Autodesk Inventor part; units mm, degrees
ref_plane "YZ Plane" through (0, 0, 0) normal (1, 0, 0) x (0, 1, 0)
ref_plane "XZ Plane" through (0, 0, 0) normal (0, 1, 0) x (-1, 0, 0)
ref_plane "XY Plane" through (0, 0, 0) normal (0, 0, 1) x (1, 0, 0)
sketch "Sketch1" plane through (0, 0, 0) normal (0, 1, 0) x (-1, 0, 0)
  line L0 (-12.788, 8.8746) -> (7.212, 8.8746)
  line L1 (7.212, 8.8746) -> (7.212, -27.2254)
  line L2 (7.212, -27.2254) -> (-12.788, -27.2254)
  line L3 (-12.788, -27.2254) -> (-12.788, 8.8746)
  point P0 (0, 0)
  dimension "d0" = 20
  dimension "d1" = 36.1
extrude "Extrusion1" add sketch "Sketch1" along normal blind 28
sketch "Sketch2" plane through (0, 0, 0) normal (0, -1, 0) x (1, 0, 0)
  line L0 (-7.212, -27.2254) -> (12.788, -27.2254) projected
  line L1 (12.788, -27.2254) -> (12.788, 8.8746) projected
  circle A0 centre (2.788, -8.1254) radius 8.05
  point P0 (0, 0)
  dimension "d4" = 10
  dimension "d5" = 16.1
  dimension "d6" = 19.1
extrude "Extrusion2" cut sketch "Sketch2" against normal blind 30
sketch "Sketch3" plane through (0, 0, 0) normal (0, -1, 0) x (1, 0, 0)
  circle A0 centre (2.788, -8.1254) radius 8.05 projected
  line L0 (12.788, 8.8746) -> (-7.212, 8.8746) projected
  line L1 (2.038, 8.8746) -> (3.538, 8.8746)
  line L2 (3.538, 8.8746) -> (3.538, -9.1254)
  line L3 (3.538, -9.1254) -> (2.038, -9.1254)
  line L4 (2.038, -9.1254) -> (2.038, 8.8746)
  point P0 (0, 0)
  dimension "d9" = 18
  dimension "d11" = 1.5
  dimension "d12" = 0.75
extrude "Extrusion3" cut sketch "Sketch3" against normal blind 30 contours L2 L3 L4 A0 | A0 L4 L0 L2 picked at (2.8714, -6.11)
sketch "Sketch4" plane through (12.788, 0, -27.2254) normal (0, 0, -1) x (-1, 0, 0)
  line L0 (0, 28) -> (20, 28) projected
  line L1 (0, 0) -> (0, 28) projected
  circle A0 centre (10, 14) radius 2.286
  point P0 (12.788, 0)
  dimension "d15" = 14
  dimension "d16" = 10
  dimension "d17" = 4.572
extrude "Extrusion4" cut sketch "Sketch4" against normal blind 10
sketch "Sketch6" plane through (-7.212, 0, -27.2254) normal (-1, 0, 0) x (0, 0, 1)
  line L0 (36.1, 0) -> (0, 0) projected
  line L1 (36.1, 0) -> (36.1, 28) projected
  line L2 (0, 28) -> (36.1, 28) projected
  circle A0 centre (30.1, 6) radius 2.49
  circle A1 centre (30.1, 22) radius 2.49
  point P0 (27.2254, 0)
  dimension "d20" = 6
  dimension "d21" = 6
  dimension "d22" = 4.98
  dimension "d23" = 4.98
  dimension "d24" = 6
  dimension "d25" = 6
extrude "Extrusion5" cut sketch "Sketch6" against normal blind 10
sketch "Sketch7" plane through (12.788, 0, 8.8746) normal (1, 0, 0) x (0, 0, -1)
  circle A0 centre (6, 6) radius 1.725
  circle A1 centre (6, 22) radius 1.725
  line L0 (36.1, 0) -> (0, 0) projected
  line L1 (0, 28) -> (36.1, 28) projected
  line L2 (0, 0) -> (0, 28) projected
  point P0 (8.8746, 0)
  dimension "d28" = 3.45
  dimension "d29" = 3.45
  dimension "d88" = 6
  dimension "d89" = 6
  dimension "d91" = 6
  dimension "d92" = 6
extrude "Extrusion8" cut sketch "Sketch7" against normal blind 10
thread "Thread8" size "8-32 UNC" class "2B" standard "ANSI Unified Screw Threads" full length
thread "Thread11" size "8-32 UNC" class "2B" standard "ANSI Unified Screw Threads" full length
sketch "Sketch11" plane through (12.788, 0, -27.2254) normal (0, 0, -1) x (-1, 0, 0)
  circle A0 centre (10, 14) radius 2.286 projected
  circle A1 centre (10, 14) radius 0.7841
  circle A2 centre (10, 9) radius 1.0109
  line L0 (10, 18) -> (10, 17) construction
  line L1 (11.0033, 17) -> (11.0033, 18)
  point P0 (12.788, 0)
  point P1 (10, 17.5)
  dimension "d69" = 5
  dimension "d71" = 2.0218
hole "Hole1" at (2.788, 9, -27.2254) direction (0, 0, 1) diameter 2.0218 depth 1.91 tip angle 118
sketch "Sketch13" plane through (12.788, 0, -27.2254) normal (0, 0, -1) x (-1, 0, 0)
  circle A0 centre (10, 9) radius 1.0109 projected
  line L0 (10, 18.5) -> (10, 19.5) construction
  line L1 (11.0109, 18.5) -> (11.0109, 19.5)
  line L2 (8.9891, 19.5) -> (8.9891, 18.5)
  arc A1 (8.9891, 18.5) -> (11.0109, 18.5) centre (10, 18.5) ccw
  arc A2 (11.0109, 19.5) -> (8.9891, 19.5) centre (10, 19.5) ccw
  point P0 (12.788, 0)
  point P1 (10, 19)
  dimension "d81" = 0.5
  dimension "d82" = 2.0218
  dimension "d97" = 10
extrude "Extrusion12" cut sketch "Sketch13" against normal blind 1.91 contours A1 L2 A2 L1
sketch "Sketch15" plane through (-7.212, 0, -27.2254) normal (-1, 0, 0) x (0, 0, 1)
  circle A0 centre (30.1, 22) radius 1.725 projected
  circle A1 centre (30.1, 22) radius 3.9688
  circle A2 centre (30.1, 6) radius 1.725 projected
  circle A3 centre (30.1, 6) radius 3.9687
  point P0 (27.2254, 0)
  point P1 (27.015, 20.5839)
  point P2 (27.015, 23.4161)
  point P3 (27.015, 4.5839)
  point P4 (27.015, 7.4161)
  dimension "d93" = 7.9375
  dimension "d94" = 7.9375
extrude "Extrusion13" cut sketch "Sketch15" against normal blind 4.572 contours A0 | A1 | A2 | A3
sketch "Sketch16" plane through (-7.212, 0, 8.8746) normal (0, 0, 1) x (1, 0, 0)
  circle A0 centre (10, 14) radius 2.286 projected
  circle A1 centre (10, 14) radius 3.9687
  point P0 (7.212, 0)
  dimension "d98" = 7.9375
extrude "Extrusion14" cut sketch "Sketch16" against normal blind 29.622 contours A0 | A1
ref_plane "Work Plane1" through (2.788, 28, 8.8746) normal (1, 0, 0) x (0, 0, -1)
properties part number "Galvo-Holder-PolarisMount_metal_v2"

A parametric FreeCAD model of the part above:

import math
import FreeCAD as App
import Part
import Sketcher

V = App.Vector
Q = App.Units.Quantity


def add_polygon(sketch, points):
    """Adds a closed chain of lines whose ends are joined by coincident constraints."""
    first, n = sketch.GeometryCount, len(points)
    for a, b in zip(points, points[1:] + points[:1]):
        sketch.addGeometry(Part.LineSegment(App.Vector(*a, 0), App.Vector(*b, 0)), False)
    for i in range(n):
        sketch.addConstraint(Sketcher.Constraint("Coincident", first + i, 2, first + (i + 1) % n, 1))

doc = App.newDocument("Part")
body = doc.addObject("PartDesign::Body", "Body")

sketch1 = body.newObject("Sketcher::SketchObject", "Sketch")
sketch1.AttachmentSupport = (doc.getObject("XZ_Plane"), [""])
sketch1.MapMode = "FlatFace"
add_polygon(sketch1, [(-7, 9), (13, 9), (13, -27), (-7, -27)])
sketch1.addConstraint(Sketcher.Constraint("Horizontal", 0))
sketch1.addConstraint(Sketcher.Constraint("Vertical", 1))
sketch1.addConstraint(Sketcher.Constraint("Horizontal", 2))
sketch1.addConstraint(Sketcher.Constraint("Vertical", 3))
sketch1.addConstraint(Sketcher.Constraint("DistanceX", 0, 1, 0, 2, Q("20 mm")))
sketch1.addConstraint(Sketcher.Constraint("DistanceY", 1, 2, 1, 1, Q("36.1 mm")))
sketch1.addConstraint(Sketcher.Constraint("DistanceX", -1, 1, 0, 2, Q("12.788 mm")))
sketch1.addConstraint(Sketcher.Constraint("DistanceY", -1, 1, 0, 2, Q("8.8746 mm")))
pad1 = body.newObject("PartDesign::Pad", "Pad")
pad1.Profile = sketch1
pad1.Length = 28
pad1.Reversed = True

sketch2 = body.newObject("Sketcher::SketchObject", "Sketch001")
sketch2.AttachmentSupport = (doc.getObject("XZ_Plane"), [""])
sketch2.MapMode = "FlatFace"
sketch2.addGeometry(Part.Circle(V(3, -8, 0), V(0, 0, 1), 8), False)
sketch2.addConstraint(Sketcher.Constraint("Diameter", 0, Q("16.1 mm")))
sketch2.addConstraint(Sketcher.Constraint("DistanceX", -1, 1, 0, 3, Q("2.788 mm")))
sketch2.addConstraint(Sketcher.Constraint("DistanceY", 0, 3, -1, 1, Q("8.1254 mm")))
pocket1 = body.newObject("PartDesign::Pocket", "Pocket")
pocket1.Profile = sketch2
pocket1.Length = 30

sketch3 = body.newObject("Sketcher::SketchObject", "Sketch002")
sketch3.AttachmentSupport = (doc.getObject("XZ_Plane"), [""])
sketch3.MapMode = "FlatFace"
add_polygon(sketch3, [(3.5, -9.1), (3.5, 8.9), (2, 8.9), (2, -9.1)])
sketch3.addConstraint(Sketcher.Constraint("Vertical", 0))
sketch3.addConstraint(Sketcher.Constraint("Horizontal", 1))
sketch3.addConstraint(Sketcher.Constraint("Vertical", 2))
sketch3.addConstraint(Sketcher.Constraint("Horizontal", 3))
sketch3.addConstraint(Sketcher.Constraint("DistanceY", 0, 1, 0, 2, Q("18 mm")))
sketch3.addConstraint(Sketcher.Constraint("DistanceX", 1, 2, 1, 1, Q("1.5 mm")))
sketch3.addConstraint(Sketcher.Constraint("DistanceX", -1, 1, 0, 2, Q("3.538 mm")))
sketch3.addConstraint(Sketcher.Constraint("DistanceY", -1, 1, 0, 2, Q("8.8746 mm")))
pocket2 = body.newObject("PartDesign::Pocket", "Pocket001")
pocket2.Profile = sketch3
pocket2.Length = 30

sketch4 = body.newObject("Sketcher::SketchObject", "Sketch003")
sketch4.AttachmentSupport = (doc.getObject("XY_Plane"), [""])
sketch4.MapMode = "FlatFace"
sketch4.AttachmentOffset = App.Placement(V(0, 0, -27.2254), App.Rotation())
sketch4.addGeometry(Part.Circle(V(2.8, 14, 0), V(0, 0, 1), 2.3), False)
sketch4.addConstraint(Sketcher.Constraint("Diameter", 0, Q("4.572 mm")))
sketch4.addConstraint(Sketcher.Constraint("DistanceY", -1, 1, 0, 3, Q("14 mm")))
sketch4.addConstraint(Sketcher.Constraint("DistanceX", -1, 1, 0, 3, Q("2.788 mm")))
pocket3 = body.newObject("PartDesign::Pocket", "Pocket002")
pocket3.Profile = sketch4
pocket3.Length = 10
pocket3.Reversed = True

sketch5 = body.newObject("Sketcher::SketchObject", "Sketch004")
sketch5.AttachmentSupport = (doc.getObject("YZ_Plane"), [""])
sketch5.MapMode = "FlatFace"
sketch5.AttachmentOffset = App.Placement(V(0, 0, -7.212), App.Rotation())
sketch5.addGeometry(Part.Circle(V(6, 2.9, 0), V(0, 0, 1), 2.5), False)
sketch5.addGeometry(Part.Circle(V(22, 2.9, 0), V(0, 0, 1), 2.5), False)
sketch5.addConstraint(Sketcher.Constraint("Equal", 0, 1))
sketch5.addConstraint(Sketcher.Constraint("Horizontal", 0, 3, 1, 3))
sketch5.addConstraint(Sketcher.Constraint("Diameter", 0, Q("4.98 mm")))
sketch5.addConstraint(Sketcher.Constraint("DistanceX", -1, 1, 0, 3, Q("6 mm")))
sketch5.addConstraint(Sketcher.Constraint("DistanceX", -1, 1, 1, 3, Q("22 mm")))
sketch5.addConstraint(Sketcher.Constraint("DistanceY", -1, 1, 0, 3, Q("2.8746 mm")))
pocket4 = body.newObject("PartDesign::Pocket", "Pocket003")
pocket4.Profile = sketch5
pocket4.Length = 10
pocket4.Reversed = True

sketch6 = body.newObject("Sketcher::SketchObject", "Sketch005")
sketch6.AttachmentSupport = (doc.getObject("YZ_Plane"), [""])
sketch6.MapMode = "FlatFace"
sketch6.AttachmentOffset = App.Placement(V(0, 0, 12.788), App.Rotation())
sketch6.addGeometry(Part.Circle(V(6, 2.9, 0), V(0, 0, 1), 1.7), False)
sketch6.addGeometry(Part.Circle(V(22, 2.9, 0), V(0, 0, 1), 1.7), False)
sketch6.addConstraint(Sketcher.Constraint("Equal", 0, 1))
sketch6.addConstraint(Sketcher.Constraint("Horizontal", 0, 3, 1, 3))
sketch6.addConstraint(Sketcher.Constraint("Diameter", 0, Q("3.45 mm")))
sketch6.addConstraint(Sketcher.Constraint("DistanceX", -1, 1, 0, 3, Q("6 mm")))
sketch6.addConstraint(Sketcher.Constraint("DistanceX", -1, 1, 1, 3, Q("22 mm")))
sketch6.addConstraint(Sketcher.Constraint("DistanceY", -1, 1, 0, 3, Q("2.8746 mm")))
pocket5 = body.newObject("PartDesign::Pocket", "Pocket004")
pocket5.Profile = sketch6
pocket5.Length = 10

sketch7 = body.newObject("Sketcher::SketchObject", "Sketch006")
sketch7.AttachmentSupport = (doc.getObject("XY_Plane"), [""])
sketch7.MapMode = "FlatFace"
sketch7.AttachmentOffset = App.Placement(V(0, 0, -27.2254), App.Rotation())
sketch7.addGeometry(Part.Circle(V(2.8, 9, 0), V(0, 0, 1), 1), False)
sketch7.addConstraint(Sketcher.Constraint("DistanceY", -1, 1, 0, 3, Q("9 mm")))
sketch7.addConstraint(Sketcher.Constraint("Diameter", 0, Q("2.0218 mm")))
sketch7.addConstraint(Sketcher.Constraint("DistanceX", -1, 1, 0, 3, Q("2.788 mm")))
doc.recompute()
hole = body.newObject("PartDesign::Hole", "Hole")
hole.Profile = sketch7
hole.ThreadType = "None"
hole.Diameter = 2.0218
hole.DepthType = "Dimension"
hole.Depth = 1.91
hole.DrillPoint = "Angled"
hole.DrillPointAngle = 118
hole.Reversed = True

sketch8 = body.newObject("Sketcher::SketchObject", "Sketch007")
sketch8.AttachmentSupport = (doc.getObject("XY_Plane"), [""])
sketch8.MapMode = "FlatFace"
sketch8.AttachmentOffset = App.Placement(V(0, 0, -27.2254), App.Rotation())
sketch8.addGeometry(Part.ArcOfCircle(Part.Circle(V(2.8, 18.5, 0), V(0, 0, 1), 1), math.radians(180), math.radians(360)), False)
sketch8.addGeometry(Part.LineSegment(V(1.8, 18.5, 0), V(1.8, 19.5, 0)), False)
sketch8.addGeometry(Part.ArcOfCircle(Part.Circle(V(2.8, 19.5, 0), V(0, 0, 1), 1), math.radians(0), math.radians(180)), False)
sketch8.addGeometry(Part.LineSegment(V(3.8, 19.5, 0), V(3.8, 18.5, 0)), False)
sketch8.addConstraint(Sketcher.Constraint("Tangent", 0, 1, 1, 1))
sketch8.addConstraint(Sketcher.Constraint("Tangent", 1, 2, 2, 2))
sketch8.addConstraint(Sketcher.Constraint("Tangent", 2, 1, 3, 1))
sketch8.addConstraint(Sketcher.Constraint("Tangent", 3, 2, 0, 2))
sketch8.addConstraint(Sketcher.Constraint("Vertical", 1))
sketch8.addConstraint(Sketcher.Constraint("Vertical", 3))
sketch8.addConstraint(Sketcher.Constraint("Radius", 0, Q("1.011 mm")))
sketch8.addConstraint(Sketcher.Constraint("DistanceY", 1, 1, 1, 2, Q("1 mm")))
sketch8.addConstraint(Sketcher.Constraint("DistanceY", -1, 1, 0, 3, Q("18.5 mm")))
sketch8.addConstraint(Sketcher.Constraint("DistanceX", -1, 1, 0, 3, Q("2.788 mm")))
pocket6 = body.newObject("PartDesign::Pocket", "Pocket005")
pocket6.Profile = sketch8
pocket6.Length = 1.91
pocket6.Reversed = True

sketch9 = body.newObject("Sketcher::SketchObject", "Sketch008")
sketch9.AttachmentSupport = (doc.getObject("YZ_Plane"), [""])
sketch9.MapMode = "FlatFace"
sketch9.AttachmentOffset = App.Placement(V(0, 0, -7.212), App.Rotation())
sketch9.addGeometry(Part.Circle(V(22, 2.9, 0), V(0, 0, 1), 4), False)
sketch9.addGeometry(Part.Circle(V(6, 2.9, 0), V(0, 0, 1), 4), False)
sketch9.addConstraint(Sketcher.Constraint("Equal", 0, 1))
sketch9.addConstraint(Sketcher.Constraint("Horizontal", 0, 3, 1, 3))
sketch9.addConstraint(Sketcher.Constraint("Diameter", 0, Q("7.9376 mm")))
sketch9.addConstraint(Sketcher.Constraint("DistanceX", -1, 1, 0, 3, Q("22 mm")))
sketch9.addConstraint(Sketcher.Constraint("DistanceX", -1, 1, 1, 3, Q("6 mm")))
sketch9.addConstraint(Sketcher.Constraint("DistanceY", -1, 1, 0, 3, Q("2.8746 mm")))
pocket7 = body.newObject("PartDesign::Pocket", "Pocket006")
pocket7.Profile = sketch9
pocket7.Length = 4.572
pocket7.Reversed = True

sketch10 = body.newObject("Sketcher::SketchObject", "Sketch009")
sketch10.AttachmentSupport = (doc.getObject("XY_Plane"), [""])
sketch10.MapMode = "FlatFace"
sketch10.AttachmentOffset = App.Placement(V(0, 0, 8.8746), App.Rotation())
sketch10.addGeometry(Part.Circle(V(2.8, 14, 0), V(0, 0, 1), 4), False)
sketch10.addConstraint(Sketcher.Constraint("Diameter", 0, Q("7.9374 mm")))
sketch10.addConstraint(Sketcher.Constraint("DistanceY", -1, 1, 0, 3, Q("14 mm")))
sketch10.addConstraint(Sketcher.Constraint("DistanceX", -1, 1, 0, 3, Q("2.788 mm")))
pocket8 = body.newObject("PartDesign::Pocket", "Pocket007")
pocket8.Profile = sketch10
pocket8.Length = 29.622

doc.recompute()
